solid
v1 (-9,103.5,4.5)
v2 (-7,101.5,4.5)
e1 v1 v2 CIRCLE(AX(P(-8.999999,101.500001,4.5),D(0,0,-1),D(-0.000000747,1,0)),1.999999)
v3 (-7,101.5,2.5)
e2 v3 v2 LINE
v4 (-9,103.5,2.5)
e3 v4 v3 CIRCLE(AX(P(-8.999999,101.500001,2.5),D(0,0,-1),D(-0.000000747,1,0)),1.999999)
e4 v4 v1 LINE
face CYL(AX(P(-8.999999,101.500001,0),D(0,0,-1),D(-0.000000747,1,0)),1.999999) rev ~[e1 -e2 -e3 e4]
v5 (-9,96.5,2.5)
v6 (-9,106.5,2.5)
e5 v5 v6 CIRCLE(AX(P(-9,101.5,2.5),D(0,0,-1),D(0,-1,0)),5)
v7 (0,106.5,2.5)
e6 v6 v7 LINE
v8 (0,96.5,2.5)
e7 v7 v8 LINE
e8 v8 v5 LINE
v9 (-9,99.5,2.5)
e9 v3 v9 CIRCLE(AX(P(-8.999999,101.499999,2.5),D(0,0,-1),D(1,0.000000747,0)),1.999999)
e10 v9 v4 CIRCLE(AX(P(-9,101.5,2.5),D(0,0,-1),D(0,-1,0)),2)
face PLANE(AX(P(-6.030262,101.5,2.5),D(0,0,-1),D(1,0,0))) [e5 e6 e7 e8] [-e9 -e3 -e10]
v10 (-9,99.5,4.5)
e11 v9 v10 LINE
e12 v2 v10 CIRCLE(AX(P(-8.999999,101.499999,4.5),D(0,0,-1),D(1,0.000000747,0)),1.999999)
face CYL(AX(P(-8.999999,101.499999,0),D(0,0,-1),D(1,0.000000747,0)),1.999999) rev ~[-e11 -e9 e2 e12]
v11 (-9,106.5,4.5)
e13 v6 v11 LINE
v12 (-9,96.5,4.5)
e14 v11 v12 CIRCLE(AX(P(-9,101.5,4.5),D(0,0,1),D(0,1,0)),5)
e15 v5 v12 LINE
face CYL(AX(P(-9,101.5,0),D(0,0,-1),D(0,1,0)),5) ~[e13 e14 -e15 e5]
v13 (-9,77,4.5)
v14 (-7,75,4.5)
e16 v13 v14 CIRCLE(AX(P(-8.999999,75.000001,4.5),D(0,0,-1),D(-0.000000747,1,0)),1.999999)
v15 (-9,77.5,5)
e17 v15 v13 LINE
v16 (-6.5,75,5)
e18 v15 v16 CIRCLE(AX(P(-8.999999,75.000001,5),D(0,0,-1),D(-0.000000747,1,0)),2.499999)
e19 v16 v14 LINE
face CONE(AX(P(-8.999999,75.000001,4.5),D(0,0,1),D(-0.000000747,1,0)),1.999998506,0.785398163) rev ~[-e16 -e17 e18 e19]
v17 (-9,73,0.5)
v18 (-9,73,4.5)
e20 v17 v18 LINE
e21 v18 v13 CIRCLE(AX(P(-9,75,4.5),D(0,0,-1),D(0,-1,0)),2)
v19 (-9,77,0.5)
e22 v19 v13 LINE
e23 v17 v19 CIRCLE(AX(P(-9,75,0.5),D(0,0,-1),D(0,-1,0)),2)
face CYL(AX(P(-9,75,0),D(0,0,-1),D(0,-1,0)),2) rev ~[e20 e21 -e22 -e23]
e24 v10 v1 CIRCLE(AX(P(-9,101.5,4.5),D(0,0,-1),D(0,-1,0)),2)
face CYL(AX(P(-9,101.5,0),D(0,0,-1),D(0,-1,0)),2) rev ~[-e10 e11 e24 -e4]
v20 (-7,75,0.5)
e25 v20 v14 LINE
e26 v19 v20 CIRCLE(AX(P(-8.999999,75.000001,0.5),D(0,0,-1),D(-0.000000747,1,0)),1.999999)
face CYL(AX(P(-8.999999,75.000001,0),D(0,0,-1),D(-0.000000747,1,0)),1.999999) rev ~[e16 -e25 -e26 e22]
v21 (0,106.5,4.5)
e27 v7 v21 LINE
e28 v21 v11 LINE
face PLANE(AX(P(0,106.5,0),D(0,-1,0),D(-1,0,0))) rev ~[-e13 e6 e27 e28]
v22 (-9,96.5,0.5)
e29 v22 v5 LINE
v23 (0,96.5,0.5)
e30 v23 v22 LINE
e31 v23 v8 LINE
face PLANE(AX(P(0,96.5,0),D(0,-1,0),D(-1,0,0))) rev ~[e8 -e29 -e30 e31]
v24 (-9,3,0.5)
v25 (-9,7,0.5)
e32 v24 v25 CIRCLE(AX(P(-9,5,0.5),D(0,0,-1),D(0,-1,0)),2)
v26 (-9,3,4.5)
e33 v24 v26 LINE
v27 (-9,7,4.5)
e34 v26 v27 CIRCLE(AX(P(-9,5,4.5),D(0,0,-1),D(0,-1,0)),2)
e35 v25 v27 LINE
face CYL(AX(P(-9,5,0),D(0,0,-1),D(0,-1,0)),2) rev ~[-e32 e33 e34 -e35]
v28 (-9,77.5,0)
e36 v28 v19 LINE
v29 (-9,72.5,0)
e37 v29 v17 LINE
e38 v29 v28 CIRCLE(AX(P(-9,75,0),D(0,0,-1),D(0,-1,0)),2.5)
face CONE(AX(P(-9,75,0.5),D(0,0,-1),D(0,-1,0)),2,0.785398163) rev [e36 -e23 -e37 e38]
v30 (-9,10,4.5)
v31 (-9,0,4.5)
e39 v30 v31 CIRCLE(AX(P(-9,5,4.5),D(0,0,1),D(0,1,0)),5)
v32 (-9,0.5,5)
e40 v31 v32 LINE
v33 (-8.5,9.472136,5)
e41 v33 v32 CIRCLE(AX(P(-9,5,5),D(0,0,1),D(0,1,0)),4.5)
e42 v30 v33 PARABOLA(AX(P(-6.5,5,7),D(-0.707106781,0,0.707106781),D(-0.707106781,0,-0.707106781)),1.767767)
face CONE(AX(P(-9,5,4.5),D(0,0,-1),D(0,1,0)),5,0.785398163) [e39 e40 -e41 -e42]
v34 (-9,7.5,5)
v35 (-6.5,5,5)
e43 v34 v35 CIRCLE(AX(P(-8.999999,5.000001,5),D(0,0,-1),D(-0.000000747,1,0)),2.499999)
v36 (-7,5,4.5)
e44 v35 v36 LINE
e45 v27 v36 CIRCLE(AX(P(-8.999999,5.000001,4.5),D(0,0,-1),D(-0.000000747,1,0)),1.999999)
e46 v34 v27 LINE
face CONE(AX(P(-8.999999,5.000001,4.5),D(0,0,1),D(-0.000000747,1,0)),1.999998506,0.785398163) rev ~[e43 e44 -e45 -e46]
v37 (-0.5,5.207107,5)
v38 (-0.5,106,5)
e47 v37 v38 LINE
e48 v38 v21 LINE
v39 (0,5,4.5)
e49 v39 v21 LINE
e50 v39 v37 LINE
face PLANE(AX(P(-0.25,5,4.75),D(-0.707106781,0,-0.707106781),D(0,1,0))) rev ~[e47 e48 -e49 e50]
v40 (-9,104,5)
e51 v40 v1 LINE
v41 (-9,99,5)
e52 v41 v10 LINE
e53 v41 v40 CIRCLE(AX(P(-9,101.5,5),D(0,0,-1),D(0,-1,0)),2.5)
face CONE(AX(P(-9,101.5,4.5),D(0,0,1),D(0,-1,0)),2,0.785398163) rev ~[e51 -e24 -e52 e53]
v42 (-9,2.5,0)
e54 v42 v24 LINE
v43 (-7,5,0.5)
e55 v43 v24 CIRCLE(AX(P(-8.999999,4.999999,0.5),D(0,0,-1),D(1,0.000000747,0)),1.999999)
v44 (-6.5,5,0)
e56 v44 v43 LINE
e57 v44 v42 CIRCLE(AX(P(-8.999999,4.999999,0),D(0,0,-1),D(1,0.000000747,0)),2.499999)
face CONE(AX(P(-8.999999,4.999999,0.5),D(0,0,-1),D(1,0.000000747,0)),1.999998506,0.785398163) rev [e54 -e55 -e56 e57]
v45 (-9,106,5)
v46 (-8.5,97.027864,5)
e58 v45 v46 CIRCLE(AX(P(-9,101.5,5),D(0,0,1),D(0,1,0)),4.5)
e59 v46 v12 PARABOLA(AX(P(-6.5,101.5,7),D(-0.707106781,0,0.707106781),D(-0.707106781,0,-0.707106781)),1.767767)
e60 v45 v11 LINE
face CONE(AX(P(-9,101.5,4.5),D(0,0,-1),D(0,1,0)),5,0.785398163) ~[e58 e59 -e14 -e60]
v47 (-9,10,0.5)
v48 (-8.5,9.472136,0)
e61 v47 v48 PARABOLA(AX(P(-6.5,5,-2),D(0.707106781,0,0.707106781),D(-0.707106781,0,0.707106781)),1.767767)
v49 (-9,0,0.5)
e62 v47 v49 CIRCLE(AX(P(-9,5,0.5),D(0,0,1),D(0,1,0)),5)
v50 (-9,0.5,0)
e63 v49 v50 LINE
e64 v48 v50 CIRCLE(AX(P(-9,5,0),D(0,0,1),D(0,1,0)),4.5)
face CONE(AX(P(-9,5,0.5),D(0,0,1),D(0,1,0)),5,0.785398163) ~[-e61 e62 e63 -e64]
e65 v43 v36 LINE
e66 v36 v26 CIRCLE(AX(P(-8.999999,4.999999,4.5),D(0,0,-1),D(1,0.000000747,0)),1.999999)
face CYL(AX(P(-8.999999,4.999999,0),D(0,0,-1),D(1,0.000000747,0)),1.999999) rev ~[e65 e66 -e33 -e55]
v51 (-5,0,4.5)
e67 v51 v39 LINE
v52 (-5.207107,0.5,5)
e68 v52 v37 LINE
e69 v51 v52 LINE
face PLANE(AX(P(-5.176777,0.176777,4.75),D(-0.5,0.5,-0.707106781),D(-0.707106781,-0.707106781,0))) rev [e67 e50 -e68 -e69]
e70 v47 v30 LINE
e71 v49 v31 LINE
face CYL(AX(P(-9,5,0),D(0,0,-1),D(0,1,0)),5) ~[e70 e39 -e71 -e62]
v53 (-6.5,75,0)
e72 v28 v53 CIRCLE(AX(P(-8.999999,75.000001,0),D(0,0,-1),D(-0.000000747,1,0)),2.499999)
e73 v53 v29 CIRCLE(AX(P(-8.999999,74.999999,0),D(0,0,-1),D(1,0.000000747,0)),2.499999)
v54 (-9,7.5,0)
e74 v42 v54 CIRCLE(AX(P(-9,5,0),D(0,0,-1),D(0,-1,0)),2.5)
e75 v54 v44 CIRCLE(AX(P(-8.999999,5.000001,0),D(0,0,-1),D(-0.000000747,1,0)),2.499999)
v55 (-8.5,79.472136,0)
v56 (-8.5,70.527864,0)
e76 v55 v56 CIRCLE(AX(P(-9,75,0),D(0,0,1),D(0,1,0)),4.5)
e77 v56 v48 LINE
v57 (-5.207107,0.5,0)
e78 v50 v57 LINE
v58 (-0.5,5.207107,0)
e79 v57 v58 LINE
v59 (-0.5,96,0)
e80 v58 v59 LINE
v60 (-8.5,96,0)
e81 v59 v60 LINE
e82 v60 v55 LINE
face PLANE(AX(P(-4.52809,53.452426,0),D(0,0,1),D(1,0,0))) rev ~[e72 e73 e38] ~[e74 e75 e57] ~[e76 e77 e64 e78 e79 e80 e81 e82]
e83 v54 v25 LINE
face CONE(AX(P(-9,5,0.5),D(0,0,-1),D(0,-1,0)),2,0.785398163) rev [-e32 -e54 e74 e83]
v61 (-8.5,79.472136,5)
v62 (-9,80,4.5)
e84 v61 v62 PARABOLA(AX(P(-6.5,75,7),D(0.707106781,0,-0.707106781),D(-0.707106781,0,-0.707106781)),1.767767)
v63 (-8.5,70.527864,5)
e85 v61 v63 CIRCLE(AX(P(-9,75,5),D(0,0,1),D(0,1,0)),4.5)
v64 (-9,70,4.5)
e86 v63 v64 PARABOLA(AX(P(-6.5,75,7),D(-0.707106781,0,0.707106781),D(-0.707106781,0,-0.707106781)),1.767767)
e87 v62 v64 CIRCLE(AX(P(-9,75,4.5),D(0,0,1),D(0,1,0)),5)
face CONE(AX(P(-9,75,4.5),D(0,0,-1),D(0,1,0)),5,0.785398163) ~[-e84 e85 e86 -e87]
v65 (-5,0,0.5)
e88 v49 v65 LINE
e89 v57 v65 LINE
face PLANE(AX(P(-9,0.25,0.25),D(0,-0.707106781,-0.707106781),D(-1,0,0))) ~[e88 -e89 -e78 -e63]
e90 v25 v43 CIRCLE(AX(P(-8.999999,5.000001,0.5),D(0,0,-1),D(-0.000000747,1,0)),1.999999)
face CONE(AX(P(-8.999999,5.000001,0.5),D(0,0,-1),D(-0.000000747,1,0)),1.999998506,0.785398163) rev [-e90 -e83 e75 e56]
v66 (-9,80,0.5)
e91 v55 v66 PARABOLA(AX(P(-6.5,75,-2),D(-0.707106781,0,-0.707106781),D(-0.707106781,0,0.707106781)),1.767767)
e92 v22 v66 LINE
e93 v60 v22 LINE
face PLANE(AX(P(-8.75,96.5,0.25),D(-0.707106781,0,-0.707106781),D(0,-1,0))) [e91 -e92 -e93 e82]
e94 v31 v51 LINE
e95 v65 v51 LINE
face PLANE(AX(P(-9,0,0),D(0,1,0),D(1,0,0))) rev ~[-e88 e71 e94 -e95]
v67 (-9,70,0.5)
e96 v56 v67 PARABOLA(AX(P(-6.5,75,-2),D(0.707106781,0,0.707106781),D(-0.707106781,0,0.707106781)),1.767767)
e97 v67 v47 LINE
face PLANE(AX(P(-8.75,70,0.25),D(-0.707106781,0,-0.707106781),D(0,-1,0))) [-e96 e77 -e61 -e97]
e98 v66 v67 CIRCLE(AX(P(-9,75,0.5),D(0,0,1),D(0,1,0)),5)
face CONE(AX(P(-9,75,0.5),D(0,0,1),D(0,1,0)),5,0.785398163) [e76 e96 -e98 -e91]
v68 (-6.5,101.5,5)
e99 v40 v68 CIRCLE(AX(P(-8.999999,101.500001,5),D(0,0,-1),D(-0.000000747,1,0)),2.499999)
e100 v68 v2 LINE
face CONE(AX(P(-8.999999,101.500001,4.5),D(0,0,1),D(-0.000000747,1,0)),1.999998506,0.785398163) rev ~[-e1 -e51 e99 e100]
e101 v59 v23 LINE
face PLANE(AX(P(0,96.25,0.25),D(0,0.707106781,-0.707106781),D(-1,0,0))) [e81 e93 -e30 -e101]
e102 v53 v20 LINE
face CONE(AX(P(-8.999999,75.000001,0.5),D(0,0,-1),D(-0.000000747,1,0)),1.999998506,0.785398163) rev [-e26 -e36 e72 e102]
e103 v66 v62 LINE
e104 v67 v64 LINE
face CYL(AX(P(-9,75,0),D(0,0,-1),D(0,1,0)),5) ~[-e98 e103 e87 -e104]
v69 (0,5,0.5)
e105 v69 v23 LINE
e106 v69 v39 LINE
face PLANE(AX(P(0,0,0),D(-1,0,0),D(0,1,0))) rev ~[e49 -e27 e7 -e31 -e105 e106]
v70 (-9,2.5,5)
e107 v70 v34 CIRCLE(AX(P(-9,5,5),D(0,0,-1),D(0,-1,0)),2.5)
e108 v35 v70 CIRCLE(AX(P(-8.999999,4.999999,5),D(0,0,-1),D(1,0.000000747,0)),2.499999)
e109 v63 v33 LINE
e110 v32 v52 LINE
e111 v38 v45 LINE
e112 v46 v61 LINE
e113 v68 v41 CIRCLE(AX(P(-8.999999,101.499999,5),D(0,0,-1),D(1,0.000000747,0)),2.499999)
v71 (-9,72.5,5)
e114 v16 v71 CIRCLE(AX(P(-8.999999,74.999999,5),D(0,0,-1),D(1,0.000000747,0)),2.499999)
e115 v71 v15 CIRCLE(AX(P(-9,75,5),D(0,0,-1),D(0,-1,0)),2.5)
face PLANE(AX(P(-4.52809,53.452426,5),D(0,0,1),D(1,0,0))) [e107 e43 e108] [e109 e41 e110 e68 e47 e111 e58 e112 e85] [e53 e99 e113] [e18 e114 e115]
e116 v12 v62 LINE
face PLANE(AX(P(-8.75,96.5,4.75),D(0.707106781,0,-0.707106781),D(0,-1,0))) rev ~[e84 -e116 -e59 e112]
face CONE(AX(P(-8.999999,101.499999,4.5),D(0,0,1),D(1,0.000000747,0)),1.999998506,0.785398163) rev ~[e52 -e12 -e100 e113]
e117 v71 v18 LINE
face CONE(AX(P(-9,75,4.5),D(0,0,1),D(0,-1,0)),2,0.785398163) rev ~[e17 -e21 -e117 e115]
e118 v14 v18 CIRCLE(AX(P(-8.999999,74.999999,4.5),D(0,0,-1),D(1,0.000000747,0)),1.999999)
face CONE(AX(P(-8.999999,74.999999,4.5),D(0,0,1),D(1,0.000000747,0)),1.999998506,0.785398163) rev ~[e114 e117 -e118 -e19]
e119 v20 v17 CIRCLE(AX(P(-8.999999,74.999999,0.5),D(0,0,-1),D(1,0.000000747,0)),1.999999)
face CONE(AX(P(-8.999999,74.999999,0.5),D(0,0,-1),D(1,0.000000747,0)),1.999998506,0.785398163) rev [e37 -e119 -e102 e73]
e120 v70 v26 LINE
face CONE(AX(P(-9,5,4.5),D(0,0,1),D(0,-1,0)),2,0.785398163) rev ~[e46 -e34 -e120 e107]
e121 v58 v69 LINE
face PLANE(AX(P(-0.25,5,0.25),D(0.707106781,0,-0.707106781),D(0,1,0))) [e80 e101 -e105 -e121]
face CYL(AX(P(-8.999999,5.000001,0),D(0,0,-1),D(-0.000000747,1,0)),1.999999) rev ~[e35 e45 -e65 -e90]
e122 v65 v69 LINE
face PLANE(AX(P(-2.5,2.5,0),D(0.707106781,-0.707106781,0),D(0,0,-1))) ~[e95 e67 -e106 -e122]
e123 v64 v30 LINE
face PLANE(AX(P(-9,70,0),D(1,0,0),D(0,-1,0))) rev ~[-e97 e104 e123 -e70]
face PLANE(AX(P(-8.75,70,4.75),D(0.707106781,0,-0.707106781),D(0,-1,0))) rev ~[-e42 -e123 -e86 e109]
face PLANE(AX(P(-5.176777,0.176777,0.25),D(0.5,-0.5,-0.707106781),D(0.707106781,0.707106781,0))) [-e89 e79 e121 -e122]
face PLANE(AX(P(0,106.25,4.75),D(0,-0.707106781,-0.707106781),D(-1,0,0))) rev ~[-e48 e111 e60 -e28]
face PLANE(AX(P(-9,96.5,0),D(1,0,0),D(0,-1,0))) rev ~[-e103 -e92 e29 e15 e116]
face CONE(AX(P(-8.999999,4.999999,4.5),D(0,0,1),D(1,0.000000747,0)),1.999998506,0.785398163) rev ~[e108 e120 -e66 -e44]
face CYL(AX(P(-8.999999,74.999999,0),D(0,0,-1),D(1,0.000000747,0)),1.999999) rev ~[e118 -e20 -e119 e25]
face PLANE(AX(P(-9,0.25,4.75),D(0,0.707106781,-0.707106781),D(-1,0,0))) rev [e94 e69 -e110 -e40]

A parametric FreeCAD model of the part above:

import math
import FreeCAD as App
import Part
import Sketcher

V = App.Vector
Q = App.Units.Quantity


def edges_at(feature, points):
    """Names of the edges that pass closest to the given points."""
    edges = feature.Shape.Edges
    near = lambda p: min(range(len(edges)), key=lambda i: edges[i].distToShape(Part.Vertex(*p))[0])
    return sorted({f"Edge{near(p) + 1}" for p in points})

doc = App.newDocument("Part")
body = doc.addObject("PartDesign::Body", "Body")

sketch1 = body.newObject("Sketcher::SketchObject", "Sketch")
sketch1.AttachmentSupport = (doc.getObject("XY_Plane"), [""])
sketch1.MapMode = "FlatFace"
sketch1.addGeometry([
    Part.LineSegment(V(-9, 0, 0), V(0, 0, 0)),
    Part.LineSegment(V(0, 0, 0), V(0, 106.5, 0)),
    Part.LineSegment(V(0, 106.5, 0), V(-9, 106.5, 0)),
    Part.ArcOfCircle(Part.Circle(V(-9, 101.5, 0), V(0, 0, 1), 5), math.radians(90), math.radians(270)),
    Part.LineSegment(V(-9, 96.5, 0), V(-9, 80, 0)),
    Part.ArcOfCircle(Part.Circle(V(-9, 75, 0), V(0, 0, 1), 5), math.radians(90), math.radians(270)),
    Part.LineSegment(V(-9, 70, 0), V(-9, 10, 0)),
    Part.ArcOfCircle(Part.Circle(V(-9, 5, 0), V(0, 0, 1), 5), math.radians(90), math.radians(270)),
    Part.ArcOfCircle(Part.Circle(V(-9, 75, 0), V(0, 0, 1), 2), math.radians(0), math.radians(90)),
    Part.ArcOfCircle(Part.Circle(V(-9, 75, 0), V(0, 0, 1), 2), math.radians(-90), math.radians(0)),
    Part.ArcOfCircle(Part.Circle(V(-9, 75, 0), V(0, 0, 1), 2), math.radians(90), math.radians(270)),
    Part.ArcOfCircle(Part.Circle(V(-9, 101.5, 0), V(0, 0, 1), 2), math.radians(0), math.radians(90)),
    Part.ArcOfCircle(Part.Circle(V(-9, 101.5, 0), V(0, 0, 1), 2), math.radians(-90), math.radians(0)),
    Part.ArcOfCircle(Part.Circle(V(-9, 101.5, 0), V(0, 0, 1), 2), math.radians(90), math.radians(270)),
    Part.ArcOfCircle(Part.Circle(V(-9, 5, 0), V(0, 0, 1), 2), math.radians(0), math.radians(90)),
    Part.ArcOfCircle(Part.Circle(V(-9, 5, 0), V(0, 0, 1), 2), math.radians(-90), math.radians(0)),
    Part.ArcOfCircle(Part.Circle(V(-9, 5, 0), V(0, 0, 1), 2), math.radians(90), math.radians(270)),
], False)
sketch1.addConstraint([
    Sketcher.Constraint("Coincident", 0, 2, 1, 1),
    Sketcher.Constraint("Coincident", 1, 2, 2, 1),
    Sketcher.Constraint("Tangent", 2, 2, 3, 1),
    Sketcher.Constraint("Coincident", 3, 2, 4, 1),
    Sketcher.Constraint("Coincident", 4, 2, 5, 1),
    Sketcher.Constraint("Coincident", 5, 2, 6, 1),
    Sketcher.Constraint("Coincident", 6, 2, 7, 1),
    Sketcher.Constraint("Tangent", 7, 2, 0, 1),
    Sketcher.Constraint("Tangent", 8, 1, 9, 2),
    Sketcher.Constraint("Tangent", 9, 1, 10, 2),
    Sketcher.Constraint("Tangent", 10, 1, 8, 2),
    Sketcher.Constraint("Tangent", 11, 1, 12, 2),
    Sketcher.Constraint("Tangent", 12, 1, 13, 2),
    Sketcher.Constraint("Tangent", 13, 1, 11, 2),
    Sketcher.Constraint("Tangent", 14, 1, 15, 2),
    Sketcher.Constraint("Tangent", 15, 1, 16, 2),
    Sketcher.Constraint("Tangent", 16, 1, 14, 2),
    Sketcher.Constraint("Horizontal", 0),
    Sketcher.Constraint("Vertical", 1),
    Sketcher.Constraint("Horizontal", 2),
    Sketcher.Constraint("Vertical", 4),
    Sketcher.Constraint("Vertical", 6),
    Sketcher.Constraint("Coincident", 0, 2, -1, 1),
    Sketcher.Constraint("Coincident", 8, 3, 5, 3),
    Sketcher.Constraint("Coincident", 11, 3, 3, 3),
    Sketcher.Constraint("Coincident", 14, 3, 7, 3),
    Sketcher.Constraint("Equal", 3, 5),
    Sketcher.Constraint("Equal", 5, 7),
    Sketcher.Constraint("Equal", 10, 11),
    Sketcher.Constraint("Equal", 13, 14),
    Sketcher.Constraint("Horizontal", 10, 3, 8, 1),
    Sketcher.Constraint("Horizontal", 13, 3, 11, 1),
    Sketcher.Constraint("Horizontal", 16, 3, 14, 1),
    Sketcher.Constraint("Vertical", 3, 3, 5, 3),
    Sketcher.Constraint("Vertical", 5, 3, 7, 3),
    Sketcher.Constraint("Vertical", 2, 2, 3, 2),
    Sketcher.Constraint("Vertical", 4, 2, 5, 2),
    Sketcher.Constraint("Vertical", 7, 2, 9, 1),
    Sketcher.Constraint("Vertical", 9, 1, 10, 1),
    Sketcher.Constraint("Vertical", 10, 1, 12, 1),
    Sketcher.Constraint("Vertical", 12, 1, 13, 1),
    Sketcher.Constraint("Vertical", 13, 1, 15, 1),
    Sketcher.Constraint("Vertical", 15, 1, 16, 1),
    Sketcher.Constraint("Radius", 3, Q("5 mm")),
    Sketcher.Constraint("Radius", 8, Q("1.999999 mm")),
    Sketcher.Constraint("DistanceX", 0, 1, 0, 2, Q("9 mm")),
    Sketcher.Constraint("DistanceY", 6, 2, 6, 1, Q("60 mm")),
    Sketcher.Constraint("DistanceY", 1, 1, 1, 2, Q("106.5 mm")),
])
pad1 = body.newObject("PartDesign::Pad", "Pad")
pad1.Profile = sketch1
pad1.Length = 5

sketch2 = body.newObject("Sketcher::SketchObject", "Sketch001")
sketch2.AttachmentSupport = (doc.getObject("XY_Plane"), [""])
sketch2.MapMode = "FlatFace"
sketch2.addGeometry([
    Part.LineSegment(V(0, 96, 0), V(-9, 96, 0)),
    Part.ArcOfCircle(Part.Circle(V(-9, 102, 0), V(0, 0, 1), 5), math.radians(90), math.radians(270)),
    Part.LineSegment(V(-9, 106, 0), V(0, 106, 0)),
    Part.LineSegment(V(0, 106, 0), V(0, 96, 0)),
], False)
sketch2.addConstraint([
    Sketcher.Constraint("Tangent", 0, 2, 1, 2),
    Sketcher.Constraint("Tangent", 1, 1, 2, 1),
    Sketcher.Constraint("Coincident", 2, 2, 3, 1),
    Sketcher.Constraint("Coincident", 3, 2, 0, 1),
    Sketcher.Constraint("Horizontal", 0),
    Sketcher.Constraint("Horizontal", 2),
    Sketcher.Constraint("Vertical", 3),
    Sketcher.Constraint("PointOnObject", 2, 2, -2),
    Sketcher.Constraint("Radius", 1, Q("5 mm")),
    Sketcher.Constraint("DistanceX", 0, 2, 0, 1, Q("9 mm")),
    Sketcher.Constraint("DistanceY", -1, 1, 1, 3, Q("101.5 mm")),
])
pocket1 = body.newObject("PartDesign::Pocket", "Pocket")
pocket1.Profile = sketch2
pocket1.Length = 2.5
pocket1.Reversed = True
doc.recompute()

chamfer = body.newObject("PartDesign::Chamfer", "Chamfer")
chamfer.Base = (pocket1, edges_at(pocket1, [(0, 0, 2.5)]))
chamfer.Size = 5
doc.recompute()

chamfer2 = body.newObject("PartDesign::Chamfer", "Chamfer001")
chamfer2.Base = (chamfer, edges_at(chamfer, [
    (-7, 0, 5),
    (-2.5, 2.5, 5),
    (-14, 5, 5),
    (0, 55.75, 5),
    (-9, 40, 5),
    (-4.5, 106.5, 5),
    (-14, 75, 5),
    (-14, 101.5, 5),
    (-9, 88.25, 5),
    (-7.586, 73.586, 5),
    (-7.586, 100.086, 5),
    (-7.586, 3.586, 5),
    (0, 50.75, 0),
    (-2.5, 2.5, 0),
    (-4.5, 96.5, 0),
    (-7, 0, 0),
    (-9, 88.25, 0),
    (-14, 5, 0),
    (-14, 75, 0),
    (-9, 40, 0),
    (-11, 5, 0),
    (-11, 75, 0),
]))
chamfer2.Size = 0.5

doc.recompute()
